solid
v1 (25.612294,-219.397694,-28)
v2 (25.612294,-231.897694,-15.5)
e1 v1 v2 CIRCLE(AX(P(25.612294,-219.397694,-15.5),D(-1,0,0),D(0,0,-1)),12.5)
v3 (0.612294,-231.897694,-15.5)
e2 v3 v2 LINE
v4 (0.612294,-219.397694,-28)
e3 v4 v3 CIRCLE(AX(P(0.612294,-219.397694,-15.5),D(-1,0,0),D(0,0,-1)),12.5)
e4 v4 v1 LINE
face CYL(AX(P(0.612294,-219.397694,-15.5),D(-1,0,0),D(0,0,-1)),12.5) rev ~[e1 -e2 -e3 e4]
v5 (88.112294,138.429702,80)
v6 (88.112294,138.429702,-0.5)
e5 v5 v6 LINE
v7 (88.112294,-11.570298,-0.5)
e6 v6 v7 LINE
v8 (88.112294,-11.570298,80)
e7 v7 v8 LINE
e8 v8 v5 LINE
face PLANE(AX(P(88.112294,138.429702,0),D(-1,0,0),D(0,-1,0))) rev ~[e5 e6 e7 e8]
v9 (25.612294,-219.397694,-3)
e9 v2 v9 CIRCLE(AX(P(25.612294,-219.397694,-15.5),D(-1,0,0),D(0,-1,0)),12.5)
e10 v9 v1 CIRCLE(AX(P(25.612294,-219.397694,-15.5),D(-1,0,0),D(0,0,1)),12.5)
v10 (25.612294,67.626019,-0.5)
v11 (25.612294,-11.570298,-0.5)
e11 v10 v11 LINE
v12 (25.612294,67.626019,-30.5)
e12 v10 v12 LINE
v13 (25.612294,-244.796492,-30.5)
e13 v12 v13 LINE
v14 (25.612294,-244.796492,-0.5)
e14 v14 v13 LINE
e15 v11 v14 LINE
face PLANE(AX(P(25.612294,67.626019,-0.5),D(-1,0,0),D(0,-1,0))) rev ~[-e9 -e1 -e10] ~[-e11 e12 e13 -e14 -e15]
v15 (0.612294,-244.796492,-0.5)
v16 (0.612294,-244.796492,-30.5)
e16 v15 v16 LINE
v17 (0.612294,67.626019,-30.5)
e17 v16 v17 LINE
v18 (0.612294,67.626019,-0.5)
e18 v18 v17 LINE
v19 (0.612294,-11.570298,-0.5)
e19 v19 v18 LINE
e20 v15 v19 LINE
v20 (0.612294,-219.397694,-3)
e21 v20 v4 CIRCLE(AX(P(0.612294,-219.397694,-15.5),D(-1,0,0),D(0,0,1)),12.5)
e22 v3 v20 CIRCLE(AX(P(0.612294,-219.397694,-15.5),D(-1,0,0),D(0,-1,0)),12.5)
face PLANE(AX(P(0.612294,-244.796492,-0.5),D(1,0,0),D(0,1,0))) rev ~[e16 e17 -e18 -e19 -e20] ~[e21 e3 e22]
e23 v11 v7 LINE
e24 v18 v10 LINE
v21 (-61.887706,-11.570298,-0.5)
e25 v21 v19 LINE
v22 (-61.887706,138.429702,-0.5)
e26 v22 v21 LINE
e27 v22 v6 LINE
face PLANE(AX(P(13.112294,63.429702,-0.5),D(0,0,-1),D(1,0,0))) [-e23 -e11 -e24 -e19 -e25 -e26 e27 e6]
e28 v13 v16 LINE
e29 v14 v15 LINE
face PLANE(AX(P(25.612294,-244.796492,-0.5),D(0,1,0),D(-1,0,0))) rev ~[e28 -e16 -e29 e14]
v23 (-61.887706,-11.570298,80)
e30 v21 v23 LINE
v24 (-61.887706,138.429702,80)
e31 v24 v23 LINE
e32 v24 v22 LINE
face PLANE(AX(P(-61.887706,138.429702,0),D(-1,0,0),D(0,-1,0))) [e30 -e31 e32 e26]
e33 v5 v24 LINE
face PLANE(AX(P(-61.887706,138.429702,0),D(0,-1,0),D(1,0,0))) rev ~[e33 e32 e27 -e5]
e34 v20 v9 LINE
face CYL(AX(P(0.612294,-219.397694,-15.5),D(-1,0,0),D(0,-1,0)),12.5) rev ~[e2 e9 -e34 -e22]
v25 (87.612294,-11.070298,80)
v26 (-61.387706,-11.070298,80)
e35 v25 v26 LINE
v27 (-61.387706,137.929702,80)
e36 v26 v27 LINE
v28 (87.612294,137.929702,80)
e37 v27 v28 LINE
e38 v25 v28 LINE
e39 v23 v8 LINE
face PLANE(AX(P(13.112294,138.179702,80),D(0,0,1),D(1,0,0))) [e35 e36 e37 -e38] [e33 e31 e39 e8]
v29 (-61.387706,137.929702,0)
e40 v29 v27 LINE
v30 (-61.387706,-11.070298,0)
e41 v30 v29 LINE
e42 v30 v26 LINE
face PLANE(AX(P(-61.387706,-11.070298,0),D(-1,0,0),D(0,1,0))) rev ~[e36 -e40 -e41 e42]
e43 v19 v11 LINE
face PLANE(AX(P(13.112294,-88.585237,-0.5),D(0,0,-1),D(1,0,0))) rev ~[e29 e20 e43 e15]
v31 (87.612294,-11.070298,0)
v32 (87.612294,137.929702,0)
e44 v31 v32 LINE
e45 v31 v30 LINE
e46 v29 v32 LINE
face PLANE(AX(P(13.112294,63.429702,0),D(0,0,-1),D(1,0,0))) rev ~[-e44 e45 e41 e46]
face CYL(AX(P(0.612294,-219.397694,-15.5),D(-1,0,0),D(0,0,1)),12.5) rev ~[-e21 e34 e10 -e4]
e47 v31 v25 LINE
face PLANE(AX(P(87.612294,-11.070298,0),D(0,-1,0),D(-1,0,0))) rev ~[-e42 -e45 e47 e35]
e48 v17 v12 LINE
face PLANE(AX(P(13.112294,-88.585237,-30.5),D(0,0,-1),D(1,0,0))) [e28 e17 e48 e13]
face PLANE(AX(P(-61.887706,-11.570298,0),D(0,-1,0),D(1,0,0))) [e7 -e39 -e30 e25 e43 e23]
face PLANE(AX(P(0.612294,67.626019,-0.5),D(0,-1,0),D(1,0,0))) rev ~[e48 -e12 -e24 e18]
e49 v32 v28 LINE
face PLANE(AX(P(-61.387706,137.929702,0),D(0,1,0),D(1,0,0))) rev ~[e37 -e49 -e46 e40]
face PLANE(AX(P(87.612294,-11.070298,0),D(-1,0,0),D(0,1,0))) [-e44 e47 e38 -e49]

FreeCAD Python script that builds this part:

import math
import FreeCAD as App
import Part
import Sketcher

V = App.Vector

doc = App.newDocument("Part")
body = doc.addObject("PartDesign::Body", "Body")

# Sketch on XY plane
sketch1 = body.newObject("Sketcher::SketchObject", "Sketch")
sketch1.AttachmentSupport = (doc.getObject("XY_Plane"), [""])
sketch1.MapMode = "FlatFace"
sketch1.addGeometry(Part.LineSegment(V(88, 138, 0), V(-62, 138, 0)), False)
sketch1.addGeometry(Part.LineSegment(V(-62, 138, 0), V(-62, -12, 0)), False)
sketch1.addGeometry(Part.LineSegment(V(-62, -12, 0), V(88, -12, 0)), False)
sketch1.addGeometry(Part.LineSegment(V(88, -12, 0), V(88, 138, 0)), False)
sketch1.addGeometry(Part.LineSegment(V(-61, -11, 0), V(-61, 138, 0)), False)
sketch1.addGeometry(Part.LineSegment(V(-61, 138, 0), V(88, 138, 0)), False)
sketch1.addGeometry(Part.LineSegment(V(88, 138, 0), V(88, -11, 0)), False)
sketch1.addGeometry(Part.LineSegment(V(88, -11, 0), V(-61, -11, 0)), False)
sketch1.addConstraint(Sketcher.Constraint("Coincident", 0, 2, 1, 1))
sketch1.addConstraint(Sketcher.Constraint("Coincident", 1, 2, 2, 1))
sketch1.addConstraint(Sketcher.Constraint("Coincident", 2, 2, 3, 1))
sketch1.addConstraint(Sketcher.Constraint("Coincident", 3, 2, 0, 1))
sketch1.addConstraint(Sketcher.Constraint("Coincident", 4, 2, 5, 1))
sketch1.addConstraint(Sketcher.Constraint("Coincident", 5, 2, 6, 1))
sketch1.addConstraint(Sketcher.Constraint("Coincident", 6, 2, 7, 1))
sketch1.addConstraint(Sketcher.Constraint("Coincident", 7, 2, 4, 1))
sketch1.addConstraint(Sketcher.Constraint("Horizontal", 0))
sketch1.addConstraint(Sketcher.Constraint("Vertical", 1))
sketch1.addConstraint(Sketcher.Constraint("Horizontal", 2))
sketch1.addConstraint(Sketcher.Constraint("Vertical", 3))
sketch1.addConstraint(Sketcher.Constraint("Vertical", 4))
sketch1.addConstraint(Sketcher.Constraint("Horizontal", 5))
sketch1.addConstraint(Sketcher.Constraint("Vertical", 6))
sketch1.addConstraint(Sketcher.Constraint("Horizontal", 7))
sketch1.addConstraint(Sketcher.Constraint("Equal", 2, 1))
sketch1.addConstraint(Sketcher.Constraint("Equal", 7, 4))
sketch1.addConstraint(Sketcher.Constraint("DistanceX", 0, 2, 0, 1, 150.0))
sketch1.addConstraint(Sketcher.Constraint("DistanceX", 5, 1, 5, 2, 149.0))
sketch1.addConstraint(Sketcher.Constraint("DistanceX", 0, 2, 4, 2, 0.5))
sketch1.addConstraint(Sketcher.Constraint("DistanceY", 4, 2, 0, 2, 0.5))
sketch1.addConstraint(Sketcher.Constraint("DistanceX", 0, 2, -1, 1, 61.887706))
sketch1.addConstraint(Sketcher.Constraint("DistanceY", -1, 1, 0, 2, 138.429702))
pad1 = body.newObject("PartDesign::Pad", "Pad")
pad1.Profile = sketch1
pad1.Length = 80

# Sketch on XY plane
sketch2 = body.newObject("Sketcher::SketchObject", "Sketch001")
sketch2.AttachmentSupport = (doc.getObject("XY_Plane"), [""])
sketch2.MapMode = "FlatFace"
sketch2.addGeometry(Part.LineSegment(V(-62, -12, 0), V(-62, 138, 0)), False)
sketch2.addGeometry(Part.LineSegment(V(-62, 138, 0), V(88, 138, 0)), False)
sketch2.addGeometry(Part.LineSegment(V(88, 138, 0), V(88, -12, 0)), False)
sketch2.addGeometry(Part.LineSegment(V(88, -12, 0), V(-62, -12, 0)), False)
sketch2.addConstraint(Sketcher.Constraint("Coincident", 0, 2, 1, 1))
sketch2.addConstraint(Sketcher.Constraint("Coincident", 1, 2, 2, 1))
sketch2.addConstraint(Sketcher.Constraint("Coincident", 2, 2, 3, 1))
sketch2.addConstraint(Sketcher.Constraint("Coincident", 3, 2, 0, 1))
sketch2.addConstraint(Sketcher.Constraint("Vertical", 0))
sketch2.addConstraint(Sketcher.Constraint("Horizontal", 1))
sketch2.addConstraint(Sketcher.Constraint("Vertical", 2))
sketch2.addConstraint(Sketcher.Constraint("Horizontal", 3))
sketch2.addConstraint(Sketcher.Constraint("Equal", 3, 0))
sketch2.addConstraint(Sketcher.Constraint("DistanceX", 1, 1, 1, 2, 150.0))
sketch2.addConstraint(Sketcher.Constraint("DistanceX", 0, 2, -1, 1, 61.887706))
sketch2.addConstraint(Sketcher.Constraint("DistanceY", -1, 1, 0, 2, 138.429702))
pad2 = body.newObject("PartDesign::Pad", "Pad001")
pad2.Profile = sketch2
pad2.Length = 0.5
pad2.Reversed = True

# Sketch on XY plane
sketch3 = body.newObject("Sketcher::SketchObject", "Sketch002")
sketch3.AttachmentSupport = (doc.getObject("XY_Plane"), [""])
sketch3.MapMode = "FlatFace"
sketch3.AttachmentOffset = App.Placement(V(0, 0, -0.5), App.Rotation())
sketch3.addGeometry(Part.LineSegment(V(1, 68, 0), V(26, 68, 0)), False)
sketch3.addGeometry(Part.LineSegment(V(26, 68, 0), V(26, -245, 0)), False)
sketch3.addGeometry(Part.LineSegment(V(26, -245, 0), V(1, -245, 0)), False)
sketch3.addGeometry(Part.LineSegment(V(1, -245, 0), V(1, 68, 0)), False)
sketch3.addConstraint(Sketcher.Constraint("Coincident", 0, 2, 1, 1))
sketch3.addConstraint(Sketcher.Constraint("Coincident", 1, 2, 2, 1))
sketch3.addConstraint(Sketcher.Constraint("Coincident", 2, 2, 3, 1))
sketch3.addConstraint(Sketcher.Constraint("Coincident", 3, 2, 0, 1))
sketch3.addConstraint(Sketcher.Constraint("Horizontal", 0))
sketch3.addConstraint(Sketcher.Constraint("Vertical", 1))
sketch3.addConstraint(Sketcher.Constraint("Horizontal", 2))
sketch3.addConstraint(Sketcher.Constraint("Vertical", 3))
sketch3.addConstraint(Sketcher.Constraint("DistanceX", 0, 1, 0, 2, 25.0))
sketch3.addConstraint(Sketcher.Constraint("DistanceY", 1, 2, 1, 1, 312.422511))
sketch3.addConstraint(Sketcher.Constraint("DistanceY", -1, 1, 0, 2, 67.626019))
sketch3.addConstraint(Sketcher.Constraint("DistanceX", -1, 1, 0, 2, 25.612294))
pad3 = body.newObject("PartDesign::Pad", "Pad002")
pad3.Profile = sketch3
pad3.Length = 30
pad3.Reversed = True

# Sketch on YZ plane
sketch4 = body.newObject("Sketcher::SketchObject", "Sketch003")
sketch4.AttachmentSupport = (doc.getObject("YZ_Plane"), [""])
sketch4.MapMode = "FlatFace"
sketch4.AttachmentOffset = App.Placement(V(0, 0, 25.612294), App.Rotation())
sketch4.addGeometry(Part.ArcOfCircle(Part.Circle(V(86, -15.5, 0), V(0, 0, 1), 1.1), math.radians(90), math.radians(270)), False)
sketch4.addGeometry(Part.ArcOfCircle(Part.Circle(V(86, -15.5, 0), V(0, 0, 1), 1.1), math.radians(-90), math.radians(0)), False)
sketch4.addGeometry(Part.ArcOfCircle(Part.Circle(V(86, -15.5, 0), V(0, 0, 1), 1.1), math.radians(0), math.radians(90)), False)
sketch4.addConstraint(Sketcher.Constraint("Tangent", 0, 2, 1, 1))
sketch4.addConstraint(Sketcher.Constraint("Tangent", 1, 2, 2, 1))
sketch4.addConstraint(Sketcher.Constraint("Tangent", 2, 2, 0, 1))
sketch4.addConstraint(Sketcher.Constraint("Horizontal", 2, 3, 1, 2))
sketch4.addConstraint(Sketcher.Constraint("Vertical", 2, 3, 0, 2))
sketch4.addConstraint(Sketcher.Constraint("Vertical", 0, 2, 2, 2))
sketch4.addConstraint(Sketcher.Constraint("DistanceY", 0, 3, -1, 1, 15.5))
sketch4.addConstraint(Sketcher.Constraint("Radius", 0, 1.075856))
sketch4.addConstraint(Sketcher.Constraint("DistanceX", -1, 1, 0, 3, 85.952707))
pocket1 = body.newObject("PartDesign::Pocket", "Pocket")
pocket1.Profile = sketch4
pocket1.Type = "ThroughAll"

# Sketch on YZ plane
sketch5 = body.newObject("Sketcher::SketchObject", "Sketch004")
sketch5.AttachmentSupport = (doc.getObject("YZ_Plane"), [""])
sketch5.MapMode = "FlatFace"
sketch5.AttachmentOffset = App.Placement(V(0, 0, 0.612294), App.Rotation())
sketch5.addGeometry(Part.ArcOfCircle(Part.Circle(V(-219, -16, 0), V(0, 0, 1), 12), math.radians(90), math.radians(180)), False)
sketch5.addGeometry(Part.ArcOfCircle(Part.Circle(V(-219, -16, 0), V(0, 0, 1), 12), math.radians(-90), math.radians(90)), False)
sketch5.addGeometry(Part.ArcOfCircle(Part.Circle(V(-219, -16, 0), V(0, 0, 1), 12), math.radians(180), math.radians(270)), False)
sketch5.addConstraint(Sketcher.Constraint("Tangent", 0, 1, 1, 2))
sketch5.addConstraint(Sketcher.Constraint("Tangent", 1, 1, 2, 2))
sketch5.addConstraint(Sketcher.Constraint("Tangent", 2, 1, 0, 2))
sketch5.addConstraint(Sketcher.Constraint("Horizontal", 1, 3, 2, 1))
sketch5.addConstraint(Sketcher.Constraint("Vertical", 2, 3, 0, 1))
sketch5.addConstraint(Sketcher.Constraint("Vertical", 0, 1, 1, 1))
sketch5.addConstraint(Sketcher.Constraint("Radius", 0, 12.5))
sketch5.addConstraint(Sketcher.Constraint("DistanceY", 0, 1, -1, 1, 3.0))
sketch5.addConstraint(Sketcher.Constraint("DistanceX", 0, 3, -1, 1, 219.397694))
pocket2 = body.newObject("PartDesign::Pocket", "Pocket001")
pocket2.Profile = sketch5
pocket2.Type = "ThroughAll"
pocket2.Reversed = True

doc.recompute()
